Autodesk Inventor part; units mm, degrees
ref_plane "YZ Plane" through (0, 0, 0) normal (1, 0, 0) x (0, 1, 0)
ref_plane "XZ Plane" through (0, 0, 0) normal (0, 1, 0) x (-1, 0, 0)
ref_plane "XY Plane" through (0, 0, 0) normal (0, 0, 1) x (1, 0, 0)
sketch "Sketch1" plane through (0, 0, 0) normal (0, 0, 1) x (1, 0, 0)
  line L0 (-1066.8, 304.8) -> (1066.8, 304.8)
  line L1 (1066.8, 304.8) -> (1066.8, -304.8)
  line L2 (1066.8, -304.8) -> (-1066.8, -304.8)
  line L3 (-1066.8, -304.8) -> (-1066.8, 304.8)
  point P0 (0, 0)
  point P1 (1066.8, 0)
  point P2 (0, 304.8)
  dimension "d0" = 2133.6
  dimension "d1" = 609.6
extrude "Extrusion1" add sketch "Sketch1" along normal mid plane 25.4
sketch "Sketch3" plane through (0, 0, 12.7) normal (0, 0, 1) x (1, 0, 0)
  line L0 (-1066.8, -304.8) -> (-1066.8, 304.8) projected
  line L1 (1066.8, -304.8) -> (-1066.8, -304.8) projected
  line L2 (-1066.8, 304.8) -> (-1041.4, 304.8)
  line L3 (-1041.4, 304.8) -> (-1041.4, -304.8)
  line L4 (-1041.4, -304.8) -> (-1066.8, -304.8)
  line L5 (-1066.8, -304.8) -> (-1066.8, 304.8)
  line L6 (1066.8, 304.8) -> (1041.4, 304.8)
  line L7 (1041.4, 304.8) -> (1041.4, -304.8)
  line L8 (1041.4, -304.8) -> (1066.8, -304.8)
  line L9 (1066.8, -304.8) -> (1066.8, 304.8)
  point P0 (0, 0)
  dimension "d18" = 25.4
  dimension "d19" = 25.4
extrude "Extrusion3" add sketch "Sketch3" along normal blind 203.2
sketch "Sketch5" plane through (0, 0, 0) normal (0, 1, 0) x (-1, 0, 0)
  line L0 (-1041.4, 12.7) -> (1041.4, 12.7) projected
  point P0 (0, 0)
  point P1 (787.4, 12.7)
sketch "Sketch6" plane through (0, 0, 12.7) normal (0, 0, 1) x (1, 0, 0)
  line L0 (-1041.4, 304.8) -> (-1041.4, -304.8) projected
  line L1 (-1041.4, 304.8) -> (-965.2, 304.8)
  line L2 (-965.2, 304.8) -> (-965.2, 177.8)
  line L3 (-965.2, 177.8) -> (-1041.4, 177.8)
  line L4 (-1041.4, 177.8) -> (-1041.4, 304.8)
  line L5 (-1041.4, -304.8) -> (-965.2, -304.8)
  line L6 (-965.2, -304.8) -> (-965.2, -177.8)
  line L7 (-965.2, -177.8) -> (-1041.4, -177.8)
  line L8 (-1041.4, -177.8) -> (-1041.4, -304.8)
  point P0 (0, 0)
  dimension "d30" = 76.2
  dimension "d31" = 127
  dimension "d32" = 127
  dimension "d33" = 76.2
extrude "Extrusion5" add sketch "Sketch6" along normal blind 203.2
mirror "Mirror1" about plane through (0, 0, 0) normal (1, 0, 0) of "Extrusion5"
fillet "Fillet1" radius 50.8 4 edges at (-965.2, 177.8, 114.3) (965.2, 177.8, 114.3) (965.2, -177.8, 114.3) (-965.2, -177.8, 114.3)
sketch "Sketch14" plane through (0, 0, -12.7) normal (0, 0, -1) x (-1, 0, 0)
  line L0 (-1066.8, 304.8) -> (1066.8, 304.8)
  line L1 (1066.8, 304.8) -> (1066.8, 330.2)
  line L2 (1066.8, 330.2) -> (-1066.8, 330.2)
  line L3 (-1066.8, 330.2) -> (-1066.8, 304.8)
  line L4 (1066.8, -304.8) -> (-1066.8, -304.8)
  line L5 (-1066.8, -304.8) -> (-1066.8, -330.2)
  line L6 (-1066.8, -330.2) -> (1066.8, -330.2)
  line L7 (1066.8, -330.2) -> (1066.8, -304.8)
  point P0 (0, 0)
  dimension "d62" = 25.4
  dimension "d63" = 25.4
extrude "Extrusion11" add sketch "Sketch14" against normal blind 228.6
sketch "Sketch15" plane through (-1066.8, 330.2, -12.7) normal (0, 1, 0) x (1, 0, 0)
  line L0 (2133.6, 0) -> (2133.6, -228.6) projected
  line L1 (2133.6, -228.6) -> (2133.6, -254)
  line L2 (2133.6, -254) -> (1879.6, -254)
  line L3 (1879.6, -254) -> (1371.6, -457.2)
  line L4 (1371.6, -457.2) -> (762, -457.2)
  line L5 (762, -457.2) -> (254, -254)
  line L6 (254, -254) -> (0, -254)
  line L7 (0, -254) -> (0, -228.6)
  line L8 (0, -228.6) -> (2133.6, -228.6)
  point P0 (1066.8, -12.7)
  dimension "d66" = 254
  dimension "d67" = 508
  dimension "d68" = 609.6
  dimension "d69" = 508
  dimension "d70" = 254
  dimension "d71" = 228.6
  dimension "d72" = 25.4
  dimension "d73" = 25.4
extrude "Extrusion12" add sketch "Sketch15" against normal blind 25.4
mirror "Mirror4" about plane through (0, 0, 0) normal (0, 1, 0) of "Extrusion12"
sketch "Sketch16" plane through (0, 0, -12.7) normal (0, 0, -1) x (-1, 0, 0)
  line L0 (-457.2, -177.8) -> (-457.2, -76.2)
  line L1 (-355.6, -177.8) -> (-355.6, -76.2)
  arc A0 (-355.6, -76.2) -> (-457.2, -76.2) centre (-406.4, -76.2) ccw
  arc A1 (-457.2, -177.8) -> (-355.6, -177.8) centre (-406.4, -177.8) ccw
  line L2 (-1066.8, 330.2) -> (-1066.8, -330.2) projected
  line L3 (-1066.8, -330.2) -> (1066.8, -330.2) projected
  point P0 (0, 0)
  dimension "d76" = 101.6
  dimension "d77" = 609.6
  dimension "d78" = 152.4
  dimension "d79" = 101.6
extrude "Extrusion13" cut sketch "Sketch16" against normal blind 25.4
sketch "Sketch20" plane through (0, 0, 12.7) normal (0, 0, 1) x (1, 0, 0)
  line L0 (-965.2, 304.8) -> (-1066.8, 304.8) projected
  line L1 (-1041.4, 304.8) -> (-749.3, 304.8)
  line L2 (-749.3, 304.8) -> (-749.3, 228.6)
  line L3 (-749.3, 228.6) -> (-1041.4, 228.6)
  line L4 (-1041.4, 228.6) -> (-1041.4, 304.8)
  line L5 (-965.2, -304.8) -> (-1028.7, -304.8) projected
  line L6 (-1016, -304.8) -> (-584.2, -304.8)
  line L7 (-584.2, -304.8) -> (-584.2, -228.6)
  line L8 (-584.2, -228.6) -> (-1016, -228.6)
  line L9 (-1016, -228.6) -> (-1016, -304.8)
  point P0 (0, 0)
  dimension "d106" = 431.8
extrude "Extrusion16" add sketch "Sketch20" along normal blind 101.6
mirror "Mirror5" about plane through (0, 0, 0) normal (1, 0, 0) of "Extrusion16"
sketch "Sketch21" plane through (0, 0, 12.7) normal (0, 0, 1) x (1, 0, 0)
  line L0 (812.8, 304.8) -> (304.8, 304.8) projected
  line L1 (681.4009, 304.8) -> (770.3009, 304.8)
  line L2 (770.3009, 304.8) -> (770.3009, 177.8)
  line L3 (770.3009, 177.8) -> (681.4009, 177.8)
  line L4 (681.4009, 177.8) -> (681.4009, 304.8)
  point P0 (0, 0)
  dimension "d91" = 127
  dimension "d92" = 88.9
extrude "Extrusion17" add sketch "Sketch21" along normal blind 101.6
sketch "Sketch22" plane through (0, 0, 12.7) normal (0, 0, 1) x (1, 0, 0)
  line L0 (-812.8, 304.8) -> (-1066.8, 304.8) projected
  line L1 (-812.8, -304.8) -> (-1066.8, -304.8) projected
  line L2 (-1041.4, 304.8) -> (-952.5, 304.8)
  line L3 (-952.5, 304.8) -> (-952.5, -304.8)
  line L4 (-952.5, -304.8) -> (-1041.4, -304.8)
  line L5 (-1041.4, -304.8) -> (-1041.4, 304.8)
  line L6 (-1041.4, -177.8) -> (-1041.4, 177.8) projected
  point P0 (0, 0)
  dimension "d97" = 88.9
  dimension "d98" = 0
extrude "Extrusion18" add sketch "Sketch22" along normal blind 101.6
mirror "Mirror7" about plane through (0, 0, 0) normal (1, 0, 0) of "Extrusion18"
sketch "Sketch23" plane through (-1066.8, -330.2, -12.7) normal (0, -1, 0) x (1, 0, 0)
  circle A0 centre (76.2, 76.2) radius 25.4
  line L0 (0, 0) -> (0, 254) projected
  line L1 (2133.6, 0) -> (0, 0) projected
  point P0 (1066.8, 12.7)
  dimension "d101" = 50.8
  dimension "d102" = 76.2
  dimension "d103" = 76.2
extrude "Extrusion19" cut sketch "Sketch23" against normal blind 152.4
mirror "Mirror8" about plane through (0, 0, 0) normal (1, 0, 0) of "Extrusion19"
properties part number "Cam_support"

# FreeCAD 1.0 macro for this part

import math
import FreeCAD as App
import Part
import Sketcher

V = App.Vector
Q = App.Units.Quantity


def edges_at(feature, points):
    """Names of the edges that pass closest to the given points."""
    edges = feature.Shape.Edges
    near = lambda p: min(range(len(edges)), key=lambda i: edges[i].distToShape(Part.Vertex(*p))[0])
    return sorted({f"Edge{near(p) + 1}" for p in points})

doc = App.newDocument("Part")
body = doc.addObject("PartDesign::Body", "Body")

# Sketch on XY plane
sketch1 = body.newObject("Sketcher::SketchObject", "Sketch")
sketch1.AttachmentSupport = (doc.getObject("XY_Plane"), [""])
sketch1.MapMode = "FlatFace"
sketch1.addGeometry([
    Part.LineSegment(V(1066.8, 304.8, 0), V(-1066.8, 304.8, 0)),
    Part.LineSegment(V(-1066.8, 304.8, 0), V(-1066.8, -304.8, 0)),
    Part.LineSegment(V(-1066.8, -304.8, 0), V(1066.8, -304.8, 0)),
    Part.LineSegment(V(1066.8, -304.8, 0), V(1066.8, 304.8, 0)),
], False)
sketch1.addConstraint([
    Sketcher.Constraint("Coincident", 0, 2, 1, 1),
    Sketcher.Constraint("Coincident", 1, 2, 2, 1),
    Sketcher.Constraint("Coincident", 2, 2, 3, 1),
    Sketcher.Constraint("Coincident", 3, 2, 0, 1),
    Sketcher.Constraint("Horizontal", 0),
    Sketcher.Constraint("Vertical", 1),
    Sketcher.Constraint("Horizontal", 2),
    Sketcher.Constraint("Vertical", 3),
    Sketcher.Constraint("Symmetric", 0, 2, 2, 2, -1, 1),
    Sketcher.Constraint("DistanceX", 0, 2, 0, 1, Q("84 in")),
    Sketcher.Constraint("DistanceY", 1, 2, 1, 1, Q("24 in")),
])
pad1 = body.newObject("PartDesign::Pad", "Pad")
pad1.Profile = sketch1
pad1.Length = Q("1 in")
pad1.Midplane = True

# Sketch on XY plane
sketch2 = body.newObject("Sketcher::SketchObject", "Sketch001")
sketch2.AttachmentSupport = (doc.getObject("XY_Plane"), [""])
sketch2.MapMode = "FlatFace"
sketch2.AttachmentOffset = App.Placement(V(0, 0, 0.5 * 25.4), App.Rotation())
sketch2.addGeometry([
    Part.LineSegment(V(1041.4, 304.8, 0), V(1041.4, -304.8, 0)),  # 0
    Part.LineSegment(V(1041.4, -304.8, 0), V(1066.8, -304.8, 0)),  # 1
    Part.LineSegment(V(1066.8, -304.8, 0), V(1066.8, 304.8, 0)),  # 2
    Part.LineSegment(V(1066.8, 304.8, 0), V(1041.4, 304.8, 0)),  # 3
    Part.LineSegment(V(-1066.8, 304.8, 0), V(-1066.8, -304.8, 0)),  # 4
    Part.LineSegment(V(-1066.8, -304.8, 0), V(-1041.4, -304.8, 0)),  # 5
    Part.LineSegment(V(-1041.4, -304.8, 0), V(-1041.4, 304.8, 0)),  # 6
    Part.LineSegment(V(-1041.4, 304.8, 0), V(-1066.8, 304.8, 0)),  # 7
], False)
sketch2.addConstraint([
    Sketcher.Constraint("Coincident", 0, 2, 1, 1),
    Sketcher.Constraint("Coincident", 1, 2, 2, 1),
    Sketcher.Constraint("Coincident", 2, 2, 3, 1),
    Sketcher.Constraint("Coincident", 3, 2, 0, 1),
    Sketcher.Constraint("Coincident", 4, 2, 5, 1),
    Sketcher.Constraint("Coincident", 5, 2, 6, 1),
    Sketcher.Constraint("Coincident", 6, 2, 7, 1),
    Sketcher.Constraint("Coincident", 7, 2, 4, 1),
    Sketcher.Constraint("Vertical", 0),
    Sketcher.Constraint("Horizontal", 1),
    Sketcher.Constraint("Vertical", 2),
    Sketcher.Constraint("Horizontal", 3),
    Sketcher.Constraint("Vertical", 4),
    Sketcher.Constraint("Horizontal", 5),
    Sketcher.Constraint("Vertical", 6),
    Sketcher.Constraint("Horizontal", 7),
    Sketcher.Constraint("Symmetric", 2, 2, 4, 2, -1, 1),
    Sketcher.Constraint("Symmetric", 0, 2, 6, 2, -1, 1),
    Sketcher.Constraint("Horizontal", 1, 2, 4, 2),
    Sketcher.Constraint("DistanceX", 1, 1, 1, 2, Q("1 in")),
    Sketcher.Constraint("DistanceY", 0, 2, 0, 1, Q("24 in")),
    Sketcher.Constraint("DistanceX", -1, 1, 0, 2, Q("41 in")),
])
pad2 = body.newObject("PartDesign::Pad", "Pad001")
pad2.Profile = sketch2
pad2.Length = Q("8 in")

# Sketch on XY plane
sketch3 = body.newObject("Sketcher::SketchObject", "Sketch002")
sketch3.AttachmentSupport = (doc.getObject("XY_Plane"), [""])
sketch3.MapMode = "FlatFace"
sketch3.AttachmentOffset = App.Placement(V(0, 0, 0.5 * 25.4), App.Rotation())
sketch3.addGeometry([
    Part.LineSegment(V(-965.2, 304.8, 0), V(-1041.4, 304.8, 0)),  # 0
    Part.LineSegment(V(-1041.4, 304.8, 0), V(-1041.4, 177.8, 0)),  # 1
    Part.LineSegment(V(-1041.4, 177.8, 0), V(-965.2, 177.8, 0)),  # 2
    Part.LineSegment(V(-965.2, 177.8, 0), V(-965.2, 304.8, 0)),  # 3
    Part.LineSegment(V(-965.2, -177.8, 0), V(-1041.4, -177.8, 0)),  # 4
    Part.LineSegment(V(-1041.4, -177.8, 0), V(-1041.4, -304.8, 0)),  # 5
    Part.LineSegment(V(-1041.4, -304.8, 0), V(-965.2, -304.8, 0)),  # 6
    Part.LineSegment(V(-965.2, -304.8, 0), V(-965.2, -177.8, 0)),  # 7
], False)
sketch3.addConstraint([
    Sketcher.Constraint("Coincident", 0, 2, 1, 1),
    Sketcher.Constraint("Coincident", 1, 2, 2, 1),
    Sketcher.Constraint("Coincident", 2, 2, 3, 1),
    Sketcher.Constraint("Coincident", 3, 2, 0, 1),
    Sketcher.Constraint("Coincident", 4, 2, 5, 1),
    Sketcher.Constraint("Coincident", 5, 2, 6, 1),
    Sketcher.Constraint("Coincident", 6, 2, 7, 1),
    Sketcher.Constraint("Coincident", 7, 2, 4, 1),
    Sketcher.Constraint("Horizontal", 0),
    Sketcher.Constraint("Vertical", 1),
    Sketcher.Constraint("Horizontal", 2),
    Sketcher.Constraint("Vertical", 3),
    Sketcher.Constraint("Horizontal", 4),
    Sketcher.Constraint("Vertical", 5),
    Sketcher.Constraint("Horizontal", 6),
    Sketcher.Constraint("Vertical", 7),
    Sketcher.Constraint("Symmetric", 1, 2, 4, 2, -1),
    Sketcher.Constraint("Symmetric", 3, 2, 6, 2, -1),
    Sketcher.Constraint("DistanceX", 0, 2, 0, 1, Q("3 in")),
    Sketcher.Constraint("DistanceY", 1, 2, 1, 1, Q("5 in")),
    Sketcher.Constraint("DistanceX", 0, 2, -1, 1, Q("41 in")),
    Sketcher.Constraint("DistanceY", -1, 1, 0, 2, Q("12 in")),
])
pad3 = body.newObject("PartDesign::Pad", "Pad002")
pad3.Profile = sketch3
pad3.Length = Q("8 in")
doc.recompute()

mirrored = body.newObject("PartDesign::Mirrored", "Mirrored")
mirrored.Originals = [pad3]
mirrored.MirrorPlane = (doc.getObject("YZ_Plane"), [""])
body.Tip = mirrored
doc.recompute()

fillet = body.newObject("PartDesign::Fillet", "Fillet")
fillet.Base = (mirrored, edges_at(mirrored, [
    (-965.2, 177.8, 114.3),
    (965.2, 177.8, 114.3),
    (965.2, -177.8, 114.3),
    (-965.2, -177.8, 114.3),
]))
fillet.Radius = Q("2 in")

# Sketch on XY plane
sketch4 = body.newObject("Sketcher::SketchObject", "Sketch003")
sketch4.AttachmentSupport = (doc.getObject("XY_Plane"), [""])
sketch4.MapMode = "FlatFace"
sketch4.AttachmentOffset = App.Placement(V(0, 0, -0.5 * 25.4), App.Rotation())
sketch4.addGeometry([
    Part.LineSegment(V(1066.8, 330.2, 0), V(1066.8, 304.8, 0)),  # 0
    Part.LineSegment(V(1066.8, 304.8, 0), V(-1066.8, 304.8, 0)),  # 1
    Part.LineSegment(V(-1066.8, 304.8, 0), V(-1066.8, 330.2, 0)),  # 2
    Part.LineSegment(V(-1066.8, 330.2, 0), V(1066.8, 330.2, 0)),  # 3
    Part.LineSegment(V(-1066.8, -330.2, 0), V(-1066.8, -304.8, 0)),  # 4
    Part.LineSegment(V(-1066.8, -304.8, 0), V(1066.8, -304.8, 0)),  # 5
    Part.LineSegment(V(1066.8, -304.8, 0), V(1066.8, -330.2, 0)),  # 6
    Part.LineSegment(V(1066.8, -330.2, 0), V(-1066.8, -330.2, 0)),  # 7
], False)
sketch4.addConstraint([
    Sketcher.Constraint("Coincident", 0, 2, 1, 1),
    Sketcher.Constraint("Coincident", 1, 2, 2, 1),
    Sketcher.Constraint("Coincident", 2, 2, 3, 1),
    Sketcher.Constraint("Coincident", 3, 2, 0, 1),
    Sketcher.Constraint("Coincident", 4, 2, 5, 1),
    Sketcher.Constraint("Coincident", 5, 2, 6, 1),
    Sketcher.Constraint("Coincident", 6, 2, 7, 1),
    Sketcher.Constraint("Coincident", 7, 2, 4, 1),
    Sketcher.Constraint("Vertical", 0),
    Sketcher.Constraint("Horizontal", 1),
    Sketcher.Constraint("Vertical", 2),
    Sketcher.Constraint("Horizontal", 3),
    Sketcher.Constraint("Vertical", 4),
    Sketcher.Constraint("Horizontal", 5),
    Sketcher.Constraint("Vertical", 6),
    Sketcher.Constraint("Horizontal", 7),
    Sketcher.Constraint("Symmetric", 0, 2, 4, 2, -1, 1),
    Sketcher.Constraint("Symmetric", 2, 2, 6, 2, -1, 1),
    Sketcher.Constraint("Vertical", 2, 2, 4, 2),
    Sketcher.Constraint("DistanceY", 0, 2, 0, 1, Q("1 in")),
    Sketcher.Constraint("DistanceX", 1, 2, 1, 1, Q("84 in")),
    Sketcher.Constraint("DistanceY", -1, 1, 0, 2, Q("12 in")),
])
pad4 = body.newObject("PartDesign::Pad", "Pad003")
pad4.Profile = sketch4
pad4.Length = Q("9 in")

# Sketch on XZ plane
sketch5 = body.newObject("Sketcher::SketchObject", "Sketch004")
sketch5.AttachmentSupport = (doc.getObject("XZ_Plane"), [""])
sketch5.MapMode = "FlatFace"
sketch5.AttachmentOffset = App.Placement(V(0, 0, -13 * 25.4), App.Rotation())
sketch5.addGeometry([
    Part.LineSegment(V(1066.8, 241.3, 0), V(1066.8, 215.9, 0)),  # 0
    Part.LineSegment(V(1066.8, 215.9, 0), V(-1066.8, 215.9, 0)),  # 1
    Part.LineSegment(V(-1066.8, 215.9, 0), V(-1066.8, 241.3, 0)),  # 2
    Part.LineSegment(V(-1066.8, 241.3, 0), V(-812.8, 241.3, 0)),  # 3
    Part.LineSegment(V(-812.8, 241.3, 0), V(-304.8, 444.5, 0)),  # 4
    Part.LineSegment(V(-304.8, 444.5, 0), V(304.8, 444.5, 0)),  # 5
    Part.LineSegment(V(304.8, 444.5, 0), V(812.8, 241.3, 0)),  # 6
    Part.LineSegment(V(812.8, 241.3, 0), V(1066.8, 241.3, 0)),  # 7
], False)
sketch5.addConstraint([
    Sketcher.Constraint("Coincident", 0, 2, 1, 1),
    Sketcher.Constraint("Coincident", 1, 2, 2, 1),
    Sketcher.Constraint("Coincident", 2, 2, 3, 1),
    Sketcher.Constraint("Coincident", 3, 2, 4, 1),
    Sketcher.Constraint("Coincident", 4, 2, 5, 1),
    Sketcher.Constraint("Coincident", 5, 2, 6, 1),
    Sketcher.Constraint("Coincident", 6, 2, 7, 1),
    Sketcher.Constraint("Coincident", 7, 2, 0, 1),
    Sketcher.Constraint("Vertical", 0),
    Sketcher.Constraint("Horizontal", 1),
    Sketcher.Constraint("Vertical", 2),
    Sketcher.Constraint("Horizontal", 3),
    Sketcher.Constraint("Horizontal", 5),
    Sketcher.Constraint("Horizontal", 7),
    Sketcher.Constraint("Symmetric", 3, 2, 6, 2, -2),
    Sketcher.Constraint("Equal", 3, 7),
    Sketcher.Constraint("Equal", 4, 6),
    Sketcher.Constraint("DistanceX", 3, 1, 3, 2, Q("10 in")),
    Sketcher.Constraint("DistanceX", 5, 1, 5, 2, Q("24 in")),
    Sketcher.Constraint("DistanceY", 0, 2, 0, 1, Q("1 in")),
    Sketcher.Constraint("DistanceX", 3, 2, 4, 2, Q("20 in")),
    Sketcher.Constraint("DistanceY", 1, 2, 4, 2, Q("9 in")),
    Sketcher.Constraint("DistanceY", -1, 1, 0, 2, Q("8.5 in")),
])
pad5 = body.newObject("PartDesign::Pad", "Pad004")
pad5.Profile = sketch5
pad5.Length = Q("1 in")
doc.recompute()

mirrored2 = body.newObject("PartDesign::Mirrored", "Mirrored001")
mirrored2.Originals = [pad5]
mirrored2.MirrorPlane = (doc.getObject("XZ_Plane"), [""])
body.Tip = mirrored2

# Sketch on XY plane
sketch6 = body.newObject("Sketcher::SketchObject", "Sketch005")
sketch6.AttachmentSupport = (doc.getObject("XY_Plane"), [""])
sketch6.MapMode = "FlatFace"
sketch6.AttachmentOffset = App.Placement(V(0, 0, -0.5 * 25.4), App.Rotation())
sketch6.addGeometry([
    Part.LineSegment(V(457.2, -76.2, 0), V(457.2, -177.8, 0)),
    Part.ArcOfCircle(Part.Circle(V(406.4, -177.8, 0), V(0, 0, 1), 50.8), math.radians(180), math.radians(360)),
    Part.LineSegment(V(355.6, -177.8, 0), V(355.6, -76.2, 0)),
    Part.ArcOfCircle(Part.Circle(V(406.4, -76.2, 0), V(0, 0, 1), 50.8), math.radians(0), math.radians(180)),
], False)
sketch6.addConstraint([
    Sketcher.Constraint("Tangent", 0, 2, 1, 2),
    Sketcher.Constraint("Tangent", 1, 1, 2, 1),
    Sketcher.Constraint("Tangent", 2, 2, 3, 2),
    Sketcher.Constraint("Tangent", 3, 1, 0, 1),
    Sketcher.Constraint("Vertical", 0),
    Sketcher.Constraint("Vertical", 2),
    Sketcher.Constraint("Radius", 1, Q("2 in")),
    Sketcher.Constraint("DistanceY", 0, 2, 0, 1, Q("4 in")),
    Sketcher.Constraint("DistanceX", -1, 1, 1, 3, Q("16 in")),
    Sketcher.Constraint("DistanceY", 1, 3, -1, 1, Q("7 in")),
])
pocket1 = body.newObject("PartDesign::Pocket", "Pocket")
pocket1.Profile = sketch6
pocket1.Length = Q("1 in")
pocket1.Reversed = True

# Sketch on XY plane
sketch7 = body.newObject("Sketcher::SketchObject", "Sketch006")
sketch7.AttachmentSupport = (doc.getObject("XY_Plane"), [""])
sketch7.MapMode = "FlatFace"
sketch7.AttachmentOffset = App.Placement(V(0, 0, 0.5 * 25.4), App.Rotation())
sketch7.addGeometry([
    Part.LineSegment(V(-749.3, 304.8, 0), V(-1041.4, 304.8, 0)),  # 0
    Part.LineSegment(V(-1041.4, 304.8, 0), V(-1041.4, 228.6, 0)),  # 1
    Part.LineSegment(V(-1041.4, 228.6, 0), V(-749.3, 228.6, 0)),  # 2
    Part.LineSegment(V(-749.3, 228.6, 0), V(-749.3, 304.8, 0)),  # 3
    Part.LineSegment(V(-1016, -304.8, 0), V(-584.2, -304.8, 0)),  # 4
    Part.LineSegment(V(-584.2, -304.8, 0), V(-584.2, -228.6, 0)),  # 5
    Part.LineSegment(V(-584.2, -228.6, 0), V(-1016, -228.6, 0)),  # 6
    Part.LineSegment(V(-1016, -228.6, 0), V(-1016, -304.8, 0)),  # 7
], False)
sketch7.addConstraint([
    Sketcher.Constraint("Coincident", 0, 2, 1, 1),
    Sketcher.Constraint("Coincident", 1, 2, 2, 1),
    Sketcher.Constraint("Coincident", 2, 2, 3, 1),
    Sketcher.Constraint("Coincident", 3, 2, 0, 1),
    Sketcher.Constraint("Coincident", 4, 2, 5, 1),
    Sketcher.Constraint("Coincident", 5, 2, 6, 1),
    Sketcher.Constraint("Coincident", 6, 2, 7, 1),
    Sketcher.Constraint("Coincident", 7, 2, 4, 1),
    Sketcher.Constraint("Horizontal", 0),
    Sketcher.Constraint("Vertical", 1),
    Sketcher.Constraint("Horizontal", 2),
    Sketcher.Constraint("Vertical", 3),
    Sketcher.Constraint("Horizontal", 4),
    Sketcher.Constraint("Vertical", 5),
    Sketcher.Constraint("Horizontal", 6),
    Sketcher.Constraint("Vertical", 7),
    Sketcher.Constraint("Equal", 3, 5),
    Sketcher.Constraint("DistanceX", 4, 1, 4, 2, Q("17 in")),
    Sketcher.Constraint("DistanceY", 1, 2, 1, 1, Q("3 in")),
    Sketcher.Constraint("DistanceX", 0, 2, 0, 1, Q("11.5 in")),
    Sketcher.Constraint("DistanceX", 0, 2, -1, 1, Q("41 in")),
    Sketcher.Constraint("DistanceY", -1, 1, 0, 2, Q("12 in")),
    Sketcher.Constraint("DistanceX", 4, 2, -1, 1, Q("23 in")),
    Sketcher.Constraint("DistanceY", 4, 2, -1, 1, Q("12 in")),
])
pad6 = body.newObject("PartDesign::Pad", "Pad005")
pad6.Profile = sketch7
pad6.Length = Q("4 in")
doc.recompute()

mirrored3 = body.newObject("PartDesign::Mirrored", "Mirrored002")
mirrored3.Originals = [pad6]
mirrored3.MirrorPlane = (doc.getObject("YZ_Plane"), [""])
body.Tip = mirrored3

# Sketch on XY plane
sketch8 = body.newObject("Sketcher::SketchObject", "Sketch007")
sketch8.AttachmentSupport = (doc.getObject("XY_Plane"), [""])
sketch8.MapMode = "FlatFace"
sketch8.AttachmentOffset = App.Placement(V(0, 0, 0.5 * 25.4), App.Rotation())
sketch8.addGeometry([
    Part.LineSegment(V(770.3009, 177.8, 0), V(770.3009, 304.8, 0)),
    Part.LineSegment(V(770.3009, 304.8, 0), V(681.4009, 304.8, 0)),
    Part.LineSegment(V(681.4009, 304.8, 0), V(681.4009, 177.8, 0)),
    Part.LineSegment(V(681.4009, 177.8, 0), V(770.3009, 177.8, 0)),
], False)
sketch8.addConstraint([
    Sketcher.Constraint("Coincident", 0, 2, 1, 1),
    Sketcher.Constraint("Coincident", 1, 2, 2, 1),
    Sketcher.Constraint("Coincident", 2, 2, 3, 1),
    Sketcher.Constraint("Coincident", 3, 2, 0, 1),
    Sketcher.Constraint("Vertical", 0),
    Sketcher.Constraint("Horizontal", 1),
    Sketcher.Constraint("Vertical", 2),
    Sketcher.Constraint("Horizontal", 3),
    Sketcher.Constraint("DistanceY", 0, 1, 0, 2, Q("5 in")),
    Sketcher.Constraint("DistanceX", 1, 2, 1, 1, Q("3.5 in")),
    Sketcher.Constraint("DistanceY", -1, 1, 0, 2, Q("12 in")),
    Sketcher.Constraint("DistanceX", -1, 1, 0, 2, Q("30.3268 in")),
])
pad7 = body.newObject("PartDesign::Pad", "Pad006")
pad7.Profile = sketch8
pad7.Length = Q("4 in")

# Sketch on XY plane
sketch9 = body.newObject("Sketcher::SketchObject", "Sketch008")
sketch9.AttachmentSupport = (doc.getObject("XY_Plane"), [""])
sketch9.MapMode = "FlatFace"
sketch9.AttachmentOffset = App.Placement(V(0, 0, 0.5 * 25.4), App.Rotation())
sketch9.addGeometry([
    Part.LineSegment(V(-952.5, -304.8, 0), V(-952.5, 304.8, 0)),
    Part.LineSegment(V(-952.5, 304.8, 0), V(-1041.4, 304.8, 0)),
    Part.LineSegment(V(-1041.4, 304.8, 0), V(-1041.4, -304.8, 0)),
    Part.LineSegment(V(-1041.4, -304.8, 0), V(-952.5, -304.8, 0)),
], False)
sketch9.addConstraint([
    Sketcher.Constraint("Coincident", 0, 2, 1, 1),
    Sketcher.Constraint("Coincident", 1, 2, 2, 1),
    Sketcher.Constraint("Coincident", 2, 2, 3, 1),
    Sketcher.Constraint("Coincident", 3, 2, 0, 1),
    Sketcher.Constraint("Vertical", 0),
    Sketcher.Constraint("Horizontal", 1),
    Sketcher.Constraint("Vertical", 2),
    Sketcher.Constraint("Horizontal", 3),
    Sketcher.Constraint("DistanceX", 1, 2, 1, 1, Q("3.5 in")),
    Sketcher.Constraint("DistanceY", 0, 1, 0, 2, Q("24 in")),
    Sketcher.Constraint("DistanceY", -1, 1, 0, 2, Q("12 in")),
    Sketcher.Constraint("DistanceX", 1, 2, -1, 1, Q("41 in")),
])
pad8 = body.newObject("PartDesign::Pad", "Pad007")
pad8.Profile = sketch9
pad8.Length = Q("4 in")
doc.recompute()

mirrored4 = body.newObject("PartDesign::Mirrored", "Mirrored003")
mirrored4.Originals = [pad8]
mirrored4.MirrorPlane = (doc.getObject("YZ_Plane"), [""])
body.Tip = mirrored4

# Sketch on XZ plane
sketch10 = body.newObject("Sketcher::SketchObject", "Sketch009")
sketch10.AttachmentSupport = (doc.getObject("XZ_Plane"), [""])
sketch10.MapMode = "FlatFace"
sketch10.AttachmentOffset = App.Placement(V(0, 0, 13 * 25.4), App.Rotation())
sketch10.addGeometry(Part.Circle(V(-990.6, 63.5, 0), V(0, 0, 1), 25.4), False)
sketch10.addConstraint([
    Sketcher.Constraint("Diameter", 0, Q("2 in")),
    Sketcher.Constraint("DistanceX", 0, 3, -1, 1, Q("39 in")),
    Sketcher.Constraint("DistanceY", -1, 1, 0, 3, Q("2.5 in")),
])
pocket2 = body.newObject("PartDesign::Pocket", "Pocket001")
pocket2.Profile = sketch10
pocket2.Length = Q("6 in")
doc.recompute()

mirrored5 = body.newObject("PartDesign::Mirrored", "Mirrored004")
mirrored5.Originals = [pocket2]
mirrored5.MirrorPlane = (doc.getObject("YZ_Plane"), [""])
body.Tip = mirrored5

doc.recompute()
